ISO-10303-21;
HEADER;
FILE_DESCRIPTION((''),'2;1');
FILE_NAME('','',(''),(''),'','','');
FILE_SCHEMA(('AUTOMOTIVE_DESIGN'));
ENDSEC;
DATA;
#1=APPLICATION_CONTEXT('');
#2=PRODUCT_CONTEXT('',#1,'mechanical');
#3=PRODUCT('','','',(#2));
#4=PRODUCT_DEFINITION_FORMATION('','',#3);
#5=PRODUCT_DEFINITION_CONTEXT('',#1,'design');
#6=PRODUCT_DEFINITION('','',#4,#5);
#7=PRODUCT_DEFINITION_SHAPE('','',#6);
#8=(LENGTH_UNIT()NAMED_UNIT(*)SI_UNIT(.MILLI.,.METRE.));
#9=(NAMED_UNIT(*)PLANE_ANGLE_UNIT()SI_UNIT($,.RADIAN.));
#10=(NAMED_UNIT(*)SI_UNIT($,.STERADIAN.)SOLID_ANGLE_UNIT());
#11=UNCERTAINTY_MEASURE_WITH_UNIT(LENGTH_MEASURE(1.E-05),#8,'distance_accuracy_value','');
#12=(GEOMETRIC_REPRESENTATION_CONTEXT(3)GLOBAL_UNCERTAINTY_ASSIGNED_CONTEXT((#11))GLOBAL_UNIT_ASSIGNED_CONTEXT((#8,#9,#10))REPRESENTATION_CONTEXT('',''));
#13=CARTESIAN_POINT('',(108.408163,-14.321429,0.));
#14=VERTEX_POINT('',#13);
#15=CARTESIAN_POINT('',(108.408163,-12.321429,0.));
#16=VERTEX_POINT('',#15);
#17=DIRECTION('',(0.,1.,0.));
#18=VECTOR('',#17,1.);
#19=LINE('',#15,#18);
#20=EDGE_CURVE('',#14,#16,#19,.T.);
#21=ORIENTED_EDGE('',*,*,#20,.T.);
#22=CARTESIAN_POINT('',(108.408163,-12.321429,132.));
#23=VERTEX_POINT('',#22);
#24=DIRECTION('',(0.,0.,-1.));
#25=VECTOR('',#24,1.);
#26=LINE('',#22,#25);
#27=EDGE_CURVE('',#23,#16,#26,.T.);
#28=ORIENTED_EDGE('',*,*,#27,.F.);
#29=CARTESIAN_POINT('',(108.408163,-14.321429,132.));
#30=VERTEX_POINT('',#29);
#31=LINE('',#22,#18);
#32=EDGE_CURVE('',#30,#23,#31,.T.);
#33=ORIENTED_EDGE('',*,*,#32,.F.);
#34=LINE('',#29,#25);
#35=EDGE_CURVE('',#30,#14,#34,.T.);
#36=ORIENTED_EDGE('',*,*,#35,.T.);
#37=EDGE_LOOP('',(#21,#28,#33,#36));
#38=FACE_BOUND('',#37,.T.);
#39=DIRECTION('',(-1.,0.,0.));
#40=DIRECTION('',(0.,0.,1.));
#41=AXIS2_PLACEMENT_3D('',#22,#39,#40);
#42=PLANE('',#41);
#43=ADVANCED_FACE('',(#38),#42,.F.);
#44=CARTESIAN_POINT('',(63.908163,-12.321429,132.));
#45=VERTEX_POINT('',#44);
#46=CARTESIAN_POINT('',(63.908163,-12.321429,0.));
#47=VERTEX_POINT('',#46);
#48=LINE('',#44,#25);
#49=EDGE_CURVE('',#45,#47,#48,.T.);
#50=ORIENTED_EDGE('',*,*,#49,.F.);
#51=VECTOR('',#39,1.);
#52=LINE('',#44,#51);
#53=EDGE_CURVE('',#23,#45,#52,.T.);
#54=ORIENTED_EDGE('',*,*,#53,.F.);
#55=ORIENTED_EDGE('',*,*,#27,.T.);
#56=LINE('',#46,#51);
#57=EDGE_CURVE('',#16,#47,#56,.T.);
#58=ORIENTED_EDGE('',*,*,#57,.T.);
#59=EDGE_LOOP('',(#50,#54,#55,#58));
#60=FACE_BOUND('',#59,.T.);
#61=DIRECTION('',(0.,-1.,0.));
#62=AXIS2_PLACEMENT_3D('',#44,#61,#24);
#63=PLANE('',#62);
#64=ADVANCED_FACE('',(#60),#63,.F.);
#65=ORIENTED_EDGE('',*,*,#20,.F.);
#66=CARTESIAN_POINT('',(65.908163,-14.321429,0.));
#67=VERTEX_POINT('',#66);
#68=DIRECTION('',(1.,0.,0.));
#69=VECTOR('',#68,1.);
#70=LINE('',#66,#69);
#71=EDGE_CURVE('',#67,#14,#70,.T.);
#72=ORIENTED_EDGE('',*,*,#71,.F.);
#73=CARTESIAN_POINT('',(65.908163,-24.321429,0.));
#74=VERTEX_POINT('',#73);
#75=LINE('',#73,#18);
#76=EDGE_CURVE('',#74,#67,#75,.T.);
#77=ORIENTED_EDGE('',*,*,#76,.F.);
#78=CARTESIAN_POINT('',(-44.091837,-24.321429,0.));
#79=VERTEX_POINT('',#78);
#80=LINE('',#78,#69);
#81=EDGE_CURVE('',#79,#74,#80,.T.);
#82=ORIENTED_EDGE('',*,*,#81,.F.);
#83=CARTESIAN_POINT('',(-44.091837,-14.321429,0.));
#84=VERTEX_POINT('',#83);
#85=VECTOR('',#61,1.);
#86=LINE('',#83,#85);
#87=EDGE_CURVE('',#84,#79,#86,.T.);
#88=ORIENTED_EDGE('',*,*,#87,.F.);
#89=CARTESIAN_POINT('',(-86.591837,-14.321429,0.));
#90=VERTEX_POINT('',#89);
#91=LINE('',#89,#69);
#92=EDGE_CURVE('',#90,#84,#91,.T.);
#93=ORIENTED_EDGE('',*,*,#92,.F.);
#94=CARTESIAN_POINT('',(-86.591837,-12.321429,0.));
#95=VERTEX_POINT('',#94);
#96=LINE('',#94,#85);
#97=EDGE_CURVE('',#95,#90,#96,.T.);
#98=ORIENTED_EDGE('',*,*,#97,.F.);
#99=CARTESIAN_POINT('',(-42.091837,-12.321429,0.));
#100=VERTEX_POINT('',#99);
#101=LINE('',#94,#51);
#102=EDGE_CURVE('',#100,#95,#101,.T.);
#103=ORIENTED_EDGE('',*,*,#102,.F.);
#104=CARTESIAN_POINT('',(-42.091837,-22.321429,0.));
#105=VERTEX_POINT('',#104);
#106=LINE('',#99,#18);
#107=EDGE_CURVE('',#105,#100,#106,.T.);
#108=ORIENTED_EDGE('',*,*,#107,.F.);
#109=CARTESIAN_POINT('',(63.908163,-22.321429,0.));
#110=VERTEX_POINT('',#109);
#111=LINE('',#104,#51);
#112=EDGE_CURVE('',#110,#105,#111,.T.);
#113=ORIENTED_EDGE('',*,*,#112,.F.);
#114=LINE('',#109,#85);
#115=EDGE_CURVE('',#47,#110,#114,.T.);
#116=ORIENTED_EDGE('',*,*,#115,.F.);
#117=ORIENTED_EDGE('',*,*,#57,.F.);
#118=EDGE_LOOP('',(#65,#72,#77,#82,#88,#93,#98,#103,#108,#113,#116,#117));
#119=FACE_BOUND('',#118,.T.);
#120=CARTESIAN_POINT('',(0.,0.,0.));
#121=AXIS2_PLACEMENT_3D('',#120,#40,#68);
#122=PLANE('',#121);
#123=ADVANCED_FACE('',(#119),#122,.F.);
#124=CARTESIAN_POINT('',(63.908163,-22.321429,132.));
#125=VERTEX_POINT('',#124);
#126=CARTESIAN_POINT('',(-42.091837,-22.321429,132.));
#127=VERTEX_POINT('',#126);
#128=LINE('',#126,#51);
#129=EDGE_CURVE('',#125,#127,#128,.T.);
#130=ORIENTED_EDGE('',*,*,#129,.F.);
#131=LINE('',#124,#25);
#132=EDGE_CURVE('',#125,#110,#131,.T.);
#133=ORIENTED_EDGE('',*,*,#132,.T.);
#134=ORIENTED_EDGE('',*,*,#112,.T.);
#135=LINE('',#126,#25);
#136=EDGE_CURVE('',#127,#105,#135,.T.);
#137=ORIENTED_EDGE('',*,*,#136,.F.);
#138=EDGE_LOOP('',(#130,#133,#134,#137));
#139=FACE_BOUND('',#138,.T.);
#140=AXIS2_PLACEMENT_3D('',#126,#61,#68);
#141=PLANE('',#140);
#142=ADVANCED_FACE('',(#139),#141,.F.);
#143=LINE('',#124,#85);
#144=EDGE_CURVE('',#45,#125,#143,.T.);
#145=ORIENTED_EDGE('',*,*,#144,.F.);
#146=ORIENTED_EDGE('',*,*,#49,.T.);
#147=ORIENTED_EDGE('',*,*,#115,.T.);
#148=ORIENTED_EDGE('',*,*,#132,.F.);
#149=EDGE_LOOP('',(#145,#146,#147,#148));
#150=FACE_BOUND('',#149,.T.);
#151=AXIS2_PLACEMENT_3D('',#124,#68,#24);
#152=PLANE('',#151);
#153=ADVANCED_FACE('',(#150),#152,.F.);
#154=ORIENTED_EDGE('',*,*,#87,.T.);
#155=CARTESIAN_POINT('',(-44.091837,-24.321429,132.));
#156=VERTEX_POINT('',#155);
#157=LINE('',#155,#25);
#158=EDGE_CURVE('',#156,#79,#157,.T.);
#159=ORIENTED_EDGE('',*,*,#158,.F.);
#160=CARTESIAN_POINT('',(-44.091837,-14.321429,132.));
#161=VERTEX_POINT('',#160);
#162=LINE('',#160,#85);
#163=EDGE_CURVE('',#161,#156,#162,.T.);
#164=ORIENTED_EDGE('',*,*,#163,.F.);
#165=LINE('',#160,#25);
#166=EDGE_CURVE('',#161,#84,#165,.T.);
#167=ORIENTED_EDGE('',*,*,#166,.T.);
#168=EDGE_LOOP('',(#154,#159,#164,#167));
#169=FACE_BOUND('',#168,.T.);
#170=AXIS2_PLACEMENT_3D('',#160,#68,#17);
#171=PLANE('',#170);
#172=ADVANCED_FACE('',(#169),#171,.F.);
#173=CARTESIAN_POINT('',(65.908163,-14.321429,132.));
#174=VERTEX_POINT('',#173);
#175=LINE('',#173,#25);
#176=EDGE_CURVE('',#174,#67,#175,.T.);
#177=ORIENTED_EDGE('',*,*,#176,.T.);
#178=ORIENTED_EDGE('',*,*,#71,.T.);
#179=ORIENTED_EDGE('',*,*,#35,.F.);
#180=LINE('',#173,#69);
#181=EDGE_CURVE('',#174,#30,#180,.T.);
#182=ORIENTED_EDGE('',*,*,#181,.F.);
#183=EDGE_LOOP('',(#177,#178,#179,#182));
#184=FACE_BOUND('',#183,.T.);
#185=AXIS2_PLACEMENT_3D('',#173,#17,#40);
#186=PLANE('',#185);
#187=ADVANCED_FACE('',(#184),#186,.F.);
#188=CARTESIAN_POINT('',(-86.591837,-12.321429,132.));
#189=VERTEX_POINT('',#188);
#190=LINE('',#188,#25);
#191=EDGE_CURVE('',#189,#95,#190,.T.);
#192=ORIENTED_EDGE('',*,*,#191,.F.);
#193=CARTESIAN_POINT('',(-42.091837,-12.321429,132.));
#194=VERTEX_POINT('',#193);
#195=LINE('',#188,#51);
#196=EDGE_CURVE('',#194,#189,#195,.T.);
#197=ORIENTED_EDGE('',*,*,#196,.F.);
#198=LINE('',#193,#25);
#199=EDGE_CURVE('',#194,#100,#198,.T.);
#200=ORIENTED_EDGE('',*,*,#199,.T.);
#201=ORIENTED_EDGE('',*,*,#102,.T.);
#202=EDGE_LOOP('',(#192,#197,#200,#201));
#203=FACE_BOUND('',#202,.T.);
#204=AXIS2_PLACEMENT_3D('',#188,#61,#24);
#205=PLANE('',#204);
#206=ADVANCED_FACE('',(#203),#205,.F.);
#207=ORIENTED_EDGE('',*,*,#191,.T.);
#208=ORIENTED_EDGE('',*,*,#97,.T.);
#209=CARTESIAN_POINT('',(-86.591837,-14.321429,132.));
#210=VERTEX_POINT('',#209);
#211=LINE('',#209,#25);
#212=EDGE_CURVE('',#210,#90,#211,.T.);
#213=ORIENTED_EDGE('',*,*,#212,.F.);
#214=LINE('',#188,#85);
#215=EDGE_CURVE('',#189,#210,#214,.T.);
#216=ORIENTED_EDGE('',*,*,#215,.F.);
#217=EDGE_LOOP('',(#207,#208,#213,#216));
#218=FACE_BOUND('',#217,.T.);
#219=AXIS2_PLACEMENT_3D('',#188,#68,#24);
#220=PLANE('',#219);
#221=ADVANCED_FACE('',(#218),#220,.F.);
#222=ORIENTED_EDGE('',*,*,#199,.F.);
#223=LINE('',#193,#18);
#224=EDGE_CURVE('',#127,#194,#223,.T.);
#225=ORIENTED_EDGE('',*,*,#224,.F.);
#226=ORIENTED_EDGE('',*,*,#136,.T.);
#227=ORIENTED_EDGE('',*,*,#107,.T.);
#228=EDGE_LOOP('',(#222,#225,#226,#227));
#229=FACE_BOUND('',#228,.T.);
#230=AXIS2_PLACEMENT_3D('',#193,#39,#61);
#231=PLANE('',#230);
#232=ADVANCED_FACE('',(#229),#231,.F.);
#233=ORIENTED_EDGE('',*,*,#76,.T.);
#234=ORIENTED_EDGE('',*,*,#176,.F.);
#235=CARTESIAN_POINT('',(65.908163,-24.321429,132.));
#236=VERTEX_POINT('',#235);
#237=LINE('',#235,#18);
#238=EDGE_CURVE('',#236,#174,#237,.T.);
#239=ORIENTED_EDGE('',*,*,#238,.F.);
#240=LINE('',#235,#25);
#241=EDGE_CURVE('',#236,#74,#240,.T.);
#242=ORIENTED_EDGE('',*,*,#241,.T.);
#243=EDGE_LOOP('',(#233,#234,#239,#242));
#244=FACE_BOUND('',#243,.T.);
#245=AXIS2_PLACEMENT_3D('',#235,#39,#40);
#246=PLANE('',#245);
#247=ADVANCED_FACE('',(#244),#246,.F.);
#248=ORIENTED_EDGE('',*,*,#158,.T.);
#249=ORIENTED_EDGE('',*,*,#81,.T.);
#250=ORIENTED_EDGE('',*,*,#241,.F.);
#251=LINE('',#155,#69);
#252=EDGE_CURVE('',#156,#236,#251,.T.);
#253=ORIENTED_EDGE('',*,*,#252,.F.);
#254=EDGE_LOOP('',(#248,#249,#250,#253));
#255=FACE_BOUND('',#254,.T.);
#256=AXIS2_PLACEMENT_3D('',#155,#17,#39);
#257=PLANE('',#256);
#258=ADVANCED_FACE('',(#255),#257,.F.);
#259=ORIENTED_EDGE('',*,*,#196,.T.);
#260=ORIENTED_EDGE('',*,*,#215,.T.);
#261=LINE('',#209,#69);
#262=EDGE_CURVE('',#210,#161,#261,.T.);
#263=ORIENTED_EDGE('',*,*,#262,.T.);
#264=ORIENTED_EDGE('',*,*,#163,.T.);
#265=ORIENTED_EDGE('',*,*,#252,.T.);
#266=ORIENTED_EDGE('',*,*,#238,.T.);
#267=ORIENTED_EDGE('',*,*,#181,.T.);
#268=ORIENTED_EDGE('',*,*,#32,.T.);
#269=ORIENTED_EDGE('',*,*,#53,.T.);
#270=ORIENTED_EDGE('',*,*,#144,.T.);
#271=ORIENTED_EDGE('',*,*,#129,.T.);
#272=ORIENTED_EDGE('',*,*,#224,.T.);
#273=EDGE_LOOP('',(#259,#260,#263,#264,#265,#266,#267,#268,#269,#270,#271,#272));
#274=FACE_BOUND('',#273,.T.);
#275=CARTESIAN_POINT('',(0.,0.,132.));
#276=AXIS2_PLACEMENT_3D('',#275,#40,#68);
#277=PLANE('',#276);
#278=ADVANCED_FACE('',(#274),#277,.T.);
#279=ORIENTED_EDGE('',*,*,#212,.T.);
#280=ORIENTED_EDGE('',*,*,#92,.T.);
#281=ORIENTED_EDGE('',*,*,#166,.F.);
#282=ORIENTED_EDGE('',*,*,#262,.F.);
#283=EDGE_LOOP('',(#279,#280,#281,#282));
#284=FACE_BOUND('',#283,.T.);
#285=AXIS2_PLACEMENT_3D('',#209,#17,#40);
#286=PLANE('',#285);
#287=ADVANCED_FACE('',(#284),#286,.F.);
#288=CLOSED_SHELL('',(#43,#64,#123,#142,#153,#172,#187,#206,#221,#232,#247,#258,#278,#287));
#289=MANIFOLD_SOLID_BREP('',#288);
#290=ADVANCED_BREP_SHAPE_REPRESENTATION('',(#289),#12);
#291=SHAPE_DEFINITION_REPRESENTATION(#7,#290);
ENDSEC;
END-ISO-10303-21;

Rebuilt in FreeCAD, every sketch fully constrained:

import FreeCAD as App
import Part
import Sketcher

V = App.Vector


def add_polygon(sketch, points):
    """Adds a closed chain of lines whose ends are joined by coincident constraints."""
    first, n = sketch.GeometryCount, len(points)
    for a, b in zip(points, points[1:] + points[:1]):
        sketch.addGeometry(Part.LineSegment(App.Vector(*a, 0), App.Vector(*b, 0)), False)
    for i in range(n):
        sketch.addConstraint(Sketcher.Constraint("Coincident", first + i, 2, first + (i + 1) % n, 1))

doc = App.newDocument("Part")
body = doc.addObject("PartDesign::Body", "Body")

# Sketch on XY plane
sketch1 = body.newObject("Sketcher::SketchObject", "Sketch")
sketch1.AttachmentSupport = (doc.getObject("XY_Plane"), [""])
sketch1.MapMode = "FlatFace"
add_polygon(sketch1, [(-42.1, -12.3), (-86.6, -12.3), (-86.6, -14.3), (-44.1, -14.3), (-44.1, -24.3), (65.9, -24.3), (65.9, -14.3), (108.4, -14.3), (108.4, -12.3), (63.9, -12.3), (63.9, -22.3), (-42.1, -22.3)])  # lines 0-11
sketch1.addConstraint([
    Sketcher.Constraint("Horizontal", 0),
    Sketcher.Constraint("Vertical", 1),
    Sketcher.Constraint("Horizontal", 2),
    Sketcher.Constraint("Vertical", 3),
    Sketcher.Constraint("Horizontal", 4),
    Sketcher.Constraint("Vertical", 5),
    Sketcher.Constraint("Horizontal", 6),
    Sketcher.Constraint("Vertical", 7),
    Sketcher.Constraint("Horizontal", 8),
    Sketcher.Constraint("Vertical", 9),
    Sketcher.Constraint("Horizontal", 10),
    Sketcher.Constraint("Vertical", 11),
    Sketcher.Constraint("Horizontal", 2, 2, 5, 2),
    Sketcher.Constraint("Horizontal", 0, 2, 7, 2),
    Sketcher.Constraint("Equal", 2, 6),
    Sketcher.Constraint("Equal", 0, 8),
    Sketcher.Constraint("Equal", 5, 9),
    Sketcher.Constraint("DistanceX", 4, 1, 4, 2, 110.0),
    Sketcher.Constraint("DistanceX", 10, 2, 10, 1, 106.0),
    Sketcher.Constraint("DistanceY", 1, 2, 1, 1, 2.0),
    Sketcher.Constraint("DistanceY", 3, 2, 3, 1, 10.0),
    Sketcher.Constraint("DistanceX", 0, 2, 0, 1, 44.5),
    Sketcher.Constraint("DistanceY", 0, 2, -1, 1, 12.321429),
    Sketcher.Constraint("DistanceX", 0, 2, -1, 1, 86.591837),
])
pad1 = body.newObject("PartDesign::Pad", "Pad")
pad1.Profile = sketch1
pad1.Length = 132

doc.recompute()
